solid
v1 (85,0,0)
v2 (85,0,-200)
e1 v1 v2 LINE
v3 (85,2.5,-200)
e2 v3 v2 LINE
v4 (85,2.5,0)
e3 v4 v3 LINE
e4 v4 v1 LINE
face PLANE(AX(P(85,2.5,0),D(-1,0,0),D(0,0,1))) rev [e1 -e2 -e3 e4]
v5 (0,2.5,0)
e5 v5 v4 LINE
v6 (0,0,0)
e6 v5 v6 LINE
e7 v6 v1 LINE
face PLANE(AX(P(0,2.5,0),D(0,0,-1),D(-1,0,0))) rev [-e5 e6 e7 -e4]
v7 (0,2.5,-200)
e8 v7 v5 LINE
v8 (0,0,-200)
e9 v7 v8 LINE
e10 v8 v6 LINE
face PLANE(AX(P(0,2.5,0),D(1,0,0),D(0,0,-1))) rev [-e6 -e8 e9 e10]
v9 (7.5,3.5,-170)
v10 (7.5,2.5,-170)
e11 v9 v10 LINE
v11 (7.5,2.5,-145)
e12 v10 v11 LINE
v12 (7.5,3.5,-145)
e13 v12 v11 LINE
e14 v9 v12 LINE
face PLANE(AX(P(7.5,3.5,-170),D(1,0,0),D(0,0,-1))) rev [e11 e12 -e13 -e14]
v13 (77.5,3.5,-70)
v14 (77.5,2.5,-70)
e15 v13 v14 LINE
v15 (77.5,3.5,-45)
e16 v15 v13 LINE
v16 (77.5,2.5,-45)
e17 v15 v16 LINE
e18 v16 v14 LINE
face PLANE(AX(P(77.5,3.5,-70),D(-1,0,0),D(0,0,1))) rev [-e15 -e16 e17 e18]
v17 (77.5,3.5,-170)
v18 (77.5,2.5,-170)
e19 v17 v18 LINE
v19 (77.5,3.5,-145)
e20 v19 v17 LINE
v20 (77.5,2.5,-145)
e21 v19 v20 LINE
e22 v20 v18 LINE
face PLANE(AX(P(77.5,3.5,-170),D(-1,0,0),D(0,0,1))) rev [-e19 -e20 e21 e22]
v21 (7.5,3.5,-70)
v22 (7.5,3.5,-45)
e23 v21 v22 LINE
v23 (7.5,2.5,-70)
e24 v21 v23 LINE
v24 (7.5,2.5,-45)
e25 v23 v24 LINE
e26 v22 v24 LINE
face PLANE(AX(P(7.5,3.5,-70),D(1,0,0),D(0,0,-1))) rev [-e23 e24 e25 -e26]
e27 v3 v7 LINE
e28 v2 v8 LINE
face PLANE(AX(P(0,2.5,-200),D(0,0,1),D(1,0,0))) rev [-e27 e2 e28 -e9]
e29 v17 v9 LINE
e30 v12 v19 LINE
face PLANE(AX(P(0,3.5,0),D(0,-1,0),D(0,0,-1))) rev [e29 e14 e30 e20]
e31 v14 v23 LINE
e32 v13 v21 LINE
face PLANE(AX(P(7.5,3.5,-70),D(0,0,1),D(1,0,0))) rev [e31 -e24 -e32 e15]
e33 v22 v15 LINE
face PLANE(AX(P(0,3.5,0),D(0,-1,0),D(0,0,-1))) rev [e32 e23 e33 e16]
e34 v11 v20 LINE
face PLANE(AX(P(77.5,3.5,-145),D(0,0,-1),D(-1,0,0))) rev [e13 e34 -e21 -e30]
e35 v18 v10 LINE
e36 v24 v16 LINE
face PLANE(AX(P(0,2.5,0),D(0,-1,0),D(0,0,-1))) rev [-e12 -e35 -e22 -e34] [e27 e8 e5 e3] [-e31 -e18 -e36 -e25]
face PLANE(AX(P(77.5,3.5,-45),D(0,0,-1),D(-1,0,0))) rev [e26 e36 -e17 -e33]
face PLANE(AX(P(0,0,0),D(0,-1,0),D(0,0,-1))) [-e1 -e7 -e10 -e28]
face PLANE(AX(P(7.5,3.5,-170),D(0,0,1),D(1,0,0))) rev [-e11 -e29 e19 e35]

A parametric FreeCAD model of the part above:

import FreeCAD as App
import Part
import Sketcher
Q = App.Units.Quantity


def add_polygon(sketch, points):
    """Adds a closed chain of lines whose ends are joined by coincident constraints."""
    first, n = sketch.GeometryCount, len(points)
    for a, b in zip(points, points[1:] + points[:1]):
        sketch.addGeometry(Part.LineSegment(App.Vector(*a, 0), App.Vector(*b, 0)), False)
    for i in range(n):
        sketch.addConstraint(Sketcher.Constraint("Coincident", first + i, 2, first + (i + 1) % n, 1))

doc = App.newDocument("Part")
body = doc.addObject("PartDesign::Body", "Body")

sketch1 = body.newObject("Sketcher::SketchObject", "Sketch")
sketch1.AttachmentSupport = (doc.getObject("XZ_Plane"), [""])
sketch1.MapMode = "FlatFace"
add_polygon(sketch1, [(0, -200), (0, 0), (85, 0), (85, -200)])
sketch1.addConstraint([
    Sketcher.Constraint("Vertical", 0),
    Sketcher.Constraint("Horizontal", 1),
    Sketcher.Constraint("Vertical", 2),
    Sketcher.Constraint("Horizontal", 3),
    Sketcher.Constraint("Coincident", 0, 2, -1, 1),
    Sketcher.Constraint("DistanceX", 1, 1, 1, 2, Q("85 mm")),
    Sketcher.Constraint("DistanceY", 0, 1, 0, 2, Q("200 mm")),
])
pad1 = body.newObject("PartDesign::Pad", "Pad")
pad1.Profile = sketch1
pad1.Length = 2.5
pad1.Reversed = True

sketch2 = body.newObject("Sketcher::SketchObject", "Sketch001")
sketch2.AttachmentSupport = (doc.getObject("XZ_Plane"), [""])
sketch2.MapMode = "FlatFace"
sketch2.AttachmentOffset = App.Placement(App.Vector(0, 0, -2.5), App.Rotation())
add_polygon(sketch2, [(7.5, -170), (7.5, -145), (77.5, -145), (77.5, -170)])
add_polygon(sketch2, [(7.5, -70), (7.5, -45), (77.5, -45), (77.5, -70)])
sketch2.addConstraint([
    Sketcher.Constraint("Vertical", 0),
    Sketcher.Constraint("Horizontal", 1),
    Sketcher.Constraint("Vertical", 2),
    Sketcher.Constraint("Horizontal", 3),
    Sketcher.Constraint("Vertical", 4),
    Sketcher.Constraint("Horizontal", 5),
    Sketcher.Constraint("Vertical", 6),
    Sketcher.Constraint("Horizontal", 7),
    Sketcher.Constraint("Vertical", 3, 2, 4, 2),
    Sketcher.Constraint("Vertical", 2, 2, 5, 2),
    Sketcher.Constraint("Equal", 2, 4),
    Sketcher.Constraint("DistanceX", 1, 1, 1, 2, Q("70 mm")),
    Sketcher.Constraint("DistanceY", 0, 1, 0, 2, Q("25 mm")),
    Sketcher.Constraint("DistanceY", 0, 2, -1, 1, Q("145 mm")),
    Sketcher.Constraint("DistanceY", 4, 2, -1, 1, Q("45 mm")),
    Sketcher.Constraint("DistanceX", -1, 1, 0, 2, Q("7.5 mm")),
])
pad2 = body.newObject("PartDesign::Pad", "Pad001")
pad2.Profile = sketch2
pad2.Length = 1
pad2.Reversed = True

doc.recompute()
